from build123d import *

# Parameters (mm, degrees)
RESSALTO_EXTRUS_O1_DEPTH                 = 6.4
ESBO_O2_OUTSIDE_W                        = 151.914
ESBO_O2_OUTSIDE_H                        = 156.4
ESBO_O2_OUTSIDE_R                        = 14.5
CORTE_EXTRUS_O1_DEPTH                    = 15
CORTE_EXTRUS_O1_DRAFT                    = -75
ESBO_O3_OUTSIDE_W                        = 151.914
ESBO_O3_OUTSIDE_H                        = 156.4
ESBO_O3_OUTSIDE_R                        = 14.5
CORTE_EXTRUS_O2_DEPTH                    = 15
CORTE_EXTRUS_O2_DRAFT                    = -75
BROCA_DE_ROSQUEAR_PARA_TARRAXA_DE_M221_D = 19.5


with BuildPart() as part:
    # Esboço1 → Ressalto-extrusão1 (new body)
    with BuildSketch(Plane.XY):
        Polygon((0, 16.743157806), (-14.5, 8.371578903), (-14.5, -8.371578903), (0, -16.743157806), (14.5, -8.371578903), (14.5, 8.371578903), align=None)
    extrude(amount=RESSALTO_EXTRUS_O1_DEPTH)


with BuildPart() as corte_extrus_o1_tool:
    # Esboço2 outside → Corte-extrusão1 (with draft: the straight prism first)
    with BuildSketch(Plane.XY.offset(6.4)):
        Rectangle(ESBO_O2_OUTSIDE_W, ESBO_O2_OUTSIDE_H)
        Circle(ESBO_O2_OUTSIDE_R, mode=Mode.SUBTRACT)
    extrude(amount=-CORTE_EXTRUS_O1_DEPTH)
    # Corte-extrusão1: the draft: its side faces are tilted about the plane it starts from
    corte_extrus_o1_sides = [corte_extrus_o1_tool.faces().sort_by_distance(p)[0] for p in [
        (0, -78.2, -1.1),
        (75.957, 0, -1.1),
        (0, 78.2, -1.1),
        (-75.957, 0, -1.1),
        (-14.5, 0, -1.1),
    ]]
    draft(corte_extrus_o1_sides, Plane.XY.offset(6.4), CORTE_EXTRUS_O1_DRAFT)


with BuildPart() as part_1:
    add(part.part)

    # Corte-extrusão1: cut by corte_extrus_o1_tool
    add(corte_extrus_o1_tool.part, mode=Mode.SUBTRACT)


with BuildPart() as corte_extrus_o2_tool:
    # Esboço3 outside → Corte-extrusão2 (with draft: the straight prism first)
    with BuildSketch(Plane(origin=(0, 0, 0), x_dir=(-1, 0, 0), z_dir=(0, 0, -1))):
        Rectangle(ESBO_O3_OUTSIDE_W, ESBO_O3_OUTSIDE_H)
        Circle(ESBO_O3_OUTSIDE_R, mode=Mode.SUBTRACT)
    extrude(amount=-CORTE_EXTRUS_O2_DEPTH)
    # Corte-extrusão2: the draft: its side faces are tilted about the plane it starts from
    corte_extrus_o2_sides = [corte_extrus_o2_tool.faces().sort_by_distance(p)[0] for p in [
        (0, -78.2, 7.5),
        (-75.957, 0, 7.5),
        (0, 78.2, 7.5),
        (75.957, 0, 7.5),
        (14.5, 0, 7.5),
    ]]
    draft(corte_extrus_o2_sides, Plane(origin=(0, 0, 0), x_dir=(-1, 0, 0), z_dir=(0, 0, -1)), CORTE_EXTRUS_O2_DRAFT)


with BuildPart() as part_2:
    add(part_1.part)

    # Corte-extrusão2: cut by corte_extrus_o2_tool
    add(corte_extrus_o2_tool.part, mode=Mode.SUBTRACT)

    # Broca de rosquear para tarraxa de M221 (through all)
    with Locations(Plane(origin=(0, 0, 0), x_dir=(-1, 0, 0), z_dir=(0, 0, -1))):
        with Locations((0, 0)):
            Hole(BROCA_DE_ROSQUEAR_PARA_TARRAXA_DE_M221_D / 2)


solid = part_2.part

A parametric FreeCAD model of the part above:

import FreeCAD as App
import Part
import Sketcher

V = App.Vector
Q = App.Units.Quantity


def faces_at(feature, points):
    """Names of the faces that lie closest to the given points."""
    faces = feature.Shape.Faces
    near = lambda p: min(range(len(faces)), key=lambda i: faces[i].distToShape(Part.Vertex(*p))[0])
    return sorted({f"Face{near(p) + 1}" for p in points})

doc = App.newDocument("Part")
body = doc.addObject("PartDesign::Body", "Body")

# Sketch on XY plane
sketch1 = body.newObject("Sketcher::SketchObject", "Sketch")
sketch1.AttachmentSupport = (doc.getObject("XY_Plane"), [""])
sketch1.MapMode = "FlatFace"
sketch1.addGeometry(Part.LineSegment(V(0, 17, 0), V(-14, 8, 0)), False)
sketch1.addGeometry(Part.LineSegment(V(-14, 8, 0), V(-14, -8, 0)), False)
sketch1.addGeometry(Part.LineSegment(V(-14, -8, 0), V(0, -17, 0)), False)
sketch1.addGeometry(Part.LineSegment(V(0, -17, 0), V(14, -8, 0)), False)
sketch1.addGeometry(Part.LineSegment(V(14, -8, 0), V(14, 8, 0)), False)
sketch1.addGeometry(Part.LineSegment(V(14, 8, 0), V(0, 17, 0)), False)
sketch1.addConstraint(Sketcher.Constraint("Coincident", 0, 2, 1, 1))
sketch1.addConstraint(Sketcher.Constraint("Coincident", 1, 2, 2, 1))
sketch1.addConstraint(Sketcher.Constraint("Coincident", 2, 2, 3, 1))
sketch1.addConstraint(Sketcher.Constraint("Coincident", 3, 2, 4, 1))
sketch1.addConstraint(Sketcher.Constraint("Coincident", 4, 2, 5, 1))
sketch1.addConstraint(Sketcher.Constraint("Coincident", 5, 2, 0, 1))
sketch1.addConstraint(Sketcher.Constraint("Vertical", 1))
sketch1.addConstraint(Sketcher.Constraint("Vertical", 4))
sketch1.addConstraint(Sketcher.Constraint("Symmetric", 0, 2, 3, 2, -1, 1))
sketch1.addConstraint(Sketcher.Constraint("Symmetric", 2, 2, 5, 2, -1, 1))
sketch1.addConstraint(Sketcher.Constraint("PointOnObject", 2, 2, -2))
sketch1.addConstraint(Sketcher.Constraint("Parallel", 2, 5))
sketch1.addConstraint(Sketcher.Constraint("Horizontal", 1, 2, 3, 2))
sketch1.addConstraint(Sketcher.Constraint("Angle", 0, Q("-150 deg")))
sketch1.addConstraint(Sketcher.Constraint("DistanceX", 1, 2, 3, 2, 29.0))
sketch1.addConstraint(Sketcher.Constraint("DistanceY", 1, 2, 1, 1, 16.743158))
pad1 = body.newObject("PartDesign::Pad", "Pad")
pad1.Profile = sketch1
pad1.Length = 6.4
body2 = doc.addObject("PartDesign::Body", "Body001")

# Sketch on XY plane
sketch2 = body2.newObject("Sketcher::SketchObject", "Sketch001")
sketch2.AttachmentSupport = (doc.getObject("XY_Plane001"), [""])
sketch2.MapMode = "FlatFace"
sketch2.AttachmentOffset = App.Placement(V(0, 0, 6.4), App.Rotation())
sketch2.addGeometry(Part.LineSegment(V(-76, 78, 0), V(-76, -78, 0)), False)
sketch2.addGeometry(Part.LineSegment(V(-76, -78, 0), V(76, -78, 0)), False)
sketch2.addGeometry(Part.LineSegment(V(76, -78, 0), V(76, 78, 0)), False)
sketch2.addGeometry(Part.LineSegment(V(76, 78, 0), V(-76, 78, 0)), False)
sketch2.addGeometry(Part.Circle(V(0, 0, 0), V(0, 0, 1), 14), False)
sketch2.addConstraint(Sketcher.Constraint("Coincident", 0, 2, 1, 1))
sketch2.addConstraint(Sketcher.Constraint("Coincident", 1, 2, 2, 1))
sketch2.addConstraint(Sketcher.Constraint("Coincident", 2, 2, 3, 1))
sketch2.addConstraint(Sketcher.Constraint("Coincident", 3, 2, 0, 1))
sketch2.addConstraint(Sketcher.Constraint("Vertical", 0))
sketch2.addConstraint(Sketcher.Constraint("Horizontal", 1))
sketch2.addConstraint(Sketcher.Constraint("Vertical", 2))
sketch2.addConstraint(Sketcher.Constraint("Horizontal", 3))
sketch2.addConstraint(Sketcher.Constraint("Coincident", 4, 3, -1, 1))
sketch2.addConstraint(Sketcher.Constraint("Symmetric", 0, 2, 2, 2, -1, 1))
sketch2.addConstraint(Sketcher.Constraint("Diameter", 4, 29.0))
sketch2.addConstraint(Sketcher.Constraint("DistanceY", 0, 2, 0, 1, 156.4))
sketch2.addConstraint(Sketcher.Constraint("DistanceX", 1, 1, 1, 2, 151.914))
pad2 = body2.newObject("PartDesign::Pad", "Pad001")
pad2.Profile = sketch2
pad2.Length = 15
pad2.Reversed = True
doc.recompute()

datumplane = body2.newObject("PartDesign::Plane", "DatumPlane")
datumplane.AttachmentSupport = (doc.getObject("XY_Plane001"), [""])
datumplane.MapMode = "FlatFace"
datumplane.AttachmentOffset = App.Placement(V(0, 0, 6.4), App.Rotation())
draft = body2.newObject("PartDesign::Draft", "Draft")
draft.Base = (pad2, faces_at(pad2, [
    (0, -78.2, -1.1),
    (75.957, 0, -1.1),
    (0, 78.2, -1.1),
    (-75.957, 0, -1.1),
    (-14.5, 0, -1.1),
]))
draft.NeutralPlane = (datumplane, [""])
draft.Angle = 75
draft.Reversed = True
doc.recompute()

boolean = body.newObject("PartDesign::Boolean", "Boolean")
boolean.Type = "Cut"
boolean.addObjects([body2])
body3 = doc.addObject("PartDesign::Body", "Body002")

# Sketch on XY plane
sketch3 = body3.newObject("Sketcher::SketchObject", "Sketch002")
sketch3.AttachmentSupport = (doc.getObject("XY_Plane002"), [""])
sketch3.MapMode = "FlatFace"
sketch3.addGeometry(Part.LineSegment(V(76, 78, 0), V(76, -78, 0)), False)
sketch3.addGeometry(Part.LineSegment(V(76, -78, 0), V(-76, -78, 0)), False)
sketch3.addGeometry(Part.LineSegment(V(-76, -78, 0), V(-76, 78, 0)), False)
sketch3.addGeometry(Part.LineSegment(V(-76, 78, 0), V(76, 78, 0)), False)
sketch3.addGeometry(Part.Circle(V(0, 0, 0), V(0, 0, 1), 14), False)
sketch3.addConstraint(Sketcher.Constraint("Coincident", 0, 2, 1, 1))
sketch3.addConstraint(Sketcher.Constraint("Coincident", 1, 2, 2, 1))
sketch3.addConstraint(Sketcher.Constraint("Coincident", 2, 2, 3, 1))
sketch3.addConstraint(Sketcher.Constraint("Coincident", 3, 2, 0, 1))
sketch3.addConstraint(Sketcher.Constraint("Vertical", 0))
sketch3.addConstraint(Sketcher.Constraint("Horizontal", 1))
sketch3.addConstraint(Sketcher.Constraint("Vertical", 2))
sketch3.addConstraint(Sketcher.Constraint("Horizontal", 3))
sketch3.addConstraint(Sketcher.Constraint("Coincident", 4, 3, -1, 1))
sketch3.addConstraint(Sketcher.Constraint("Symmetric", 0, 2, 2, 2, -1, 1))
sketch3.addConstraint(Sketcher.Constraint("Diameter", 4, 29.0))
sketch3.addConstraint(Sketcher.Constraint("DistanceY", 0, 2, 0, 1, 156.4))
sketch3.addConstraint(Sketcher.Constraint("DistanceX", 1, 2, 1, 1, 151.914))
pad3 = body3.newObject("PartDesign::Pad", "Pad002")
pad3.Profile = sketch3
pad3.Length = 15
doc.recompute()

draft2 = body3.newObject("PartDesign::Draft", "Draft001")
draft2.Base = (pad3, faces_at(pad3, [
    (0, -78.2, 7.5),
    (-75.957, 0, 7.5),
    (0, 78.2, 7.5),
    (75.957, 0, 7.5),
    (14.5, 0, 7.5),
]))
draft2.NeutralPlane = (doc.getObject("XY_Plane002"), [""])
draft2.Angle = 75
draft2.Reversed = False
doc.recompute()

boolean2 = body.newObject("PartDesign::Boolean", "Boolean001")
boolean2.Type = "Cut"
boolean2.addObjects([body3])

# Sketch on XY plane
sketch4 = body.newObject("Sketcher::SketchObject", "Sketch003")
sketch4.AttachmentSupport = (doc.getObject("XY_Plane"), [""])
sketch4.MapMode = "FlatFace"
sketch4.addGeometry(Part.Circle(V(0, 0, 0), V(0, 0, 1), 10), False)
sketch4.addConstraint(Sketcher.Constraint("Coincident", 0, 3, -1, 1))
sketch4.addConstraint(Sketcher.Constraint("Diameter", 0, 19.5))
doc.recompute()
hole = body.newObject("PartDesign::Hole", "Hole")
hole.Profile = sketch4
hole.ThreadType = "None"
hole.Diameter = 19.5
hole.DepthType = "ThroughAll"
hole.Reversed = True

doc.recompute()
